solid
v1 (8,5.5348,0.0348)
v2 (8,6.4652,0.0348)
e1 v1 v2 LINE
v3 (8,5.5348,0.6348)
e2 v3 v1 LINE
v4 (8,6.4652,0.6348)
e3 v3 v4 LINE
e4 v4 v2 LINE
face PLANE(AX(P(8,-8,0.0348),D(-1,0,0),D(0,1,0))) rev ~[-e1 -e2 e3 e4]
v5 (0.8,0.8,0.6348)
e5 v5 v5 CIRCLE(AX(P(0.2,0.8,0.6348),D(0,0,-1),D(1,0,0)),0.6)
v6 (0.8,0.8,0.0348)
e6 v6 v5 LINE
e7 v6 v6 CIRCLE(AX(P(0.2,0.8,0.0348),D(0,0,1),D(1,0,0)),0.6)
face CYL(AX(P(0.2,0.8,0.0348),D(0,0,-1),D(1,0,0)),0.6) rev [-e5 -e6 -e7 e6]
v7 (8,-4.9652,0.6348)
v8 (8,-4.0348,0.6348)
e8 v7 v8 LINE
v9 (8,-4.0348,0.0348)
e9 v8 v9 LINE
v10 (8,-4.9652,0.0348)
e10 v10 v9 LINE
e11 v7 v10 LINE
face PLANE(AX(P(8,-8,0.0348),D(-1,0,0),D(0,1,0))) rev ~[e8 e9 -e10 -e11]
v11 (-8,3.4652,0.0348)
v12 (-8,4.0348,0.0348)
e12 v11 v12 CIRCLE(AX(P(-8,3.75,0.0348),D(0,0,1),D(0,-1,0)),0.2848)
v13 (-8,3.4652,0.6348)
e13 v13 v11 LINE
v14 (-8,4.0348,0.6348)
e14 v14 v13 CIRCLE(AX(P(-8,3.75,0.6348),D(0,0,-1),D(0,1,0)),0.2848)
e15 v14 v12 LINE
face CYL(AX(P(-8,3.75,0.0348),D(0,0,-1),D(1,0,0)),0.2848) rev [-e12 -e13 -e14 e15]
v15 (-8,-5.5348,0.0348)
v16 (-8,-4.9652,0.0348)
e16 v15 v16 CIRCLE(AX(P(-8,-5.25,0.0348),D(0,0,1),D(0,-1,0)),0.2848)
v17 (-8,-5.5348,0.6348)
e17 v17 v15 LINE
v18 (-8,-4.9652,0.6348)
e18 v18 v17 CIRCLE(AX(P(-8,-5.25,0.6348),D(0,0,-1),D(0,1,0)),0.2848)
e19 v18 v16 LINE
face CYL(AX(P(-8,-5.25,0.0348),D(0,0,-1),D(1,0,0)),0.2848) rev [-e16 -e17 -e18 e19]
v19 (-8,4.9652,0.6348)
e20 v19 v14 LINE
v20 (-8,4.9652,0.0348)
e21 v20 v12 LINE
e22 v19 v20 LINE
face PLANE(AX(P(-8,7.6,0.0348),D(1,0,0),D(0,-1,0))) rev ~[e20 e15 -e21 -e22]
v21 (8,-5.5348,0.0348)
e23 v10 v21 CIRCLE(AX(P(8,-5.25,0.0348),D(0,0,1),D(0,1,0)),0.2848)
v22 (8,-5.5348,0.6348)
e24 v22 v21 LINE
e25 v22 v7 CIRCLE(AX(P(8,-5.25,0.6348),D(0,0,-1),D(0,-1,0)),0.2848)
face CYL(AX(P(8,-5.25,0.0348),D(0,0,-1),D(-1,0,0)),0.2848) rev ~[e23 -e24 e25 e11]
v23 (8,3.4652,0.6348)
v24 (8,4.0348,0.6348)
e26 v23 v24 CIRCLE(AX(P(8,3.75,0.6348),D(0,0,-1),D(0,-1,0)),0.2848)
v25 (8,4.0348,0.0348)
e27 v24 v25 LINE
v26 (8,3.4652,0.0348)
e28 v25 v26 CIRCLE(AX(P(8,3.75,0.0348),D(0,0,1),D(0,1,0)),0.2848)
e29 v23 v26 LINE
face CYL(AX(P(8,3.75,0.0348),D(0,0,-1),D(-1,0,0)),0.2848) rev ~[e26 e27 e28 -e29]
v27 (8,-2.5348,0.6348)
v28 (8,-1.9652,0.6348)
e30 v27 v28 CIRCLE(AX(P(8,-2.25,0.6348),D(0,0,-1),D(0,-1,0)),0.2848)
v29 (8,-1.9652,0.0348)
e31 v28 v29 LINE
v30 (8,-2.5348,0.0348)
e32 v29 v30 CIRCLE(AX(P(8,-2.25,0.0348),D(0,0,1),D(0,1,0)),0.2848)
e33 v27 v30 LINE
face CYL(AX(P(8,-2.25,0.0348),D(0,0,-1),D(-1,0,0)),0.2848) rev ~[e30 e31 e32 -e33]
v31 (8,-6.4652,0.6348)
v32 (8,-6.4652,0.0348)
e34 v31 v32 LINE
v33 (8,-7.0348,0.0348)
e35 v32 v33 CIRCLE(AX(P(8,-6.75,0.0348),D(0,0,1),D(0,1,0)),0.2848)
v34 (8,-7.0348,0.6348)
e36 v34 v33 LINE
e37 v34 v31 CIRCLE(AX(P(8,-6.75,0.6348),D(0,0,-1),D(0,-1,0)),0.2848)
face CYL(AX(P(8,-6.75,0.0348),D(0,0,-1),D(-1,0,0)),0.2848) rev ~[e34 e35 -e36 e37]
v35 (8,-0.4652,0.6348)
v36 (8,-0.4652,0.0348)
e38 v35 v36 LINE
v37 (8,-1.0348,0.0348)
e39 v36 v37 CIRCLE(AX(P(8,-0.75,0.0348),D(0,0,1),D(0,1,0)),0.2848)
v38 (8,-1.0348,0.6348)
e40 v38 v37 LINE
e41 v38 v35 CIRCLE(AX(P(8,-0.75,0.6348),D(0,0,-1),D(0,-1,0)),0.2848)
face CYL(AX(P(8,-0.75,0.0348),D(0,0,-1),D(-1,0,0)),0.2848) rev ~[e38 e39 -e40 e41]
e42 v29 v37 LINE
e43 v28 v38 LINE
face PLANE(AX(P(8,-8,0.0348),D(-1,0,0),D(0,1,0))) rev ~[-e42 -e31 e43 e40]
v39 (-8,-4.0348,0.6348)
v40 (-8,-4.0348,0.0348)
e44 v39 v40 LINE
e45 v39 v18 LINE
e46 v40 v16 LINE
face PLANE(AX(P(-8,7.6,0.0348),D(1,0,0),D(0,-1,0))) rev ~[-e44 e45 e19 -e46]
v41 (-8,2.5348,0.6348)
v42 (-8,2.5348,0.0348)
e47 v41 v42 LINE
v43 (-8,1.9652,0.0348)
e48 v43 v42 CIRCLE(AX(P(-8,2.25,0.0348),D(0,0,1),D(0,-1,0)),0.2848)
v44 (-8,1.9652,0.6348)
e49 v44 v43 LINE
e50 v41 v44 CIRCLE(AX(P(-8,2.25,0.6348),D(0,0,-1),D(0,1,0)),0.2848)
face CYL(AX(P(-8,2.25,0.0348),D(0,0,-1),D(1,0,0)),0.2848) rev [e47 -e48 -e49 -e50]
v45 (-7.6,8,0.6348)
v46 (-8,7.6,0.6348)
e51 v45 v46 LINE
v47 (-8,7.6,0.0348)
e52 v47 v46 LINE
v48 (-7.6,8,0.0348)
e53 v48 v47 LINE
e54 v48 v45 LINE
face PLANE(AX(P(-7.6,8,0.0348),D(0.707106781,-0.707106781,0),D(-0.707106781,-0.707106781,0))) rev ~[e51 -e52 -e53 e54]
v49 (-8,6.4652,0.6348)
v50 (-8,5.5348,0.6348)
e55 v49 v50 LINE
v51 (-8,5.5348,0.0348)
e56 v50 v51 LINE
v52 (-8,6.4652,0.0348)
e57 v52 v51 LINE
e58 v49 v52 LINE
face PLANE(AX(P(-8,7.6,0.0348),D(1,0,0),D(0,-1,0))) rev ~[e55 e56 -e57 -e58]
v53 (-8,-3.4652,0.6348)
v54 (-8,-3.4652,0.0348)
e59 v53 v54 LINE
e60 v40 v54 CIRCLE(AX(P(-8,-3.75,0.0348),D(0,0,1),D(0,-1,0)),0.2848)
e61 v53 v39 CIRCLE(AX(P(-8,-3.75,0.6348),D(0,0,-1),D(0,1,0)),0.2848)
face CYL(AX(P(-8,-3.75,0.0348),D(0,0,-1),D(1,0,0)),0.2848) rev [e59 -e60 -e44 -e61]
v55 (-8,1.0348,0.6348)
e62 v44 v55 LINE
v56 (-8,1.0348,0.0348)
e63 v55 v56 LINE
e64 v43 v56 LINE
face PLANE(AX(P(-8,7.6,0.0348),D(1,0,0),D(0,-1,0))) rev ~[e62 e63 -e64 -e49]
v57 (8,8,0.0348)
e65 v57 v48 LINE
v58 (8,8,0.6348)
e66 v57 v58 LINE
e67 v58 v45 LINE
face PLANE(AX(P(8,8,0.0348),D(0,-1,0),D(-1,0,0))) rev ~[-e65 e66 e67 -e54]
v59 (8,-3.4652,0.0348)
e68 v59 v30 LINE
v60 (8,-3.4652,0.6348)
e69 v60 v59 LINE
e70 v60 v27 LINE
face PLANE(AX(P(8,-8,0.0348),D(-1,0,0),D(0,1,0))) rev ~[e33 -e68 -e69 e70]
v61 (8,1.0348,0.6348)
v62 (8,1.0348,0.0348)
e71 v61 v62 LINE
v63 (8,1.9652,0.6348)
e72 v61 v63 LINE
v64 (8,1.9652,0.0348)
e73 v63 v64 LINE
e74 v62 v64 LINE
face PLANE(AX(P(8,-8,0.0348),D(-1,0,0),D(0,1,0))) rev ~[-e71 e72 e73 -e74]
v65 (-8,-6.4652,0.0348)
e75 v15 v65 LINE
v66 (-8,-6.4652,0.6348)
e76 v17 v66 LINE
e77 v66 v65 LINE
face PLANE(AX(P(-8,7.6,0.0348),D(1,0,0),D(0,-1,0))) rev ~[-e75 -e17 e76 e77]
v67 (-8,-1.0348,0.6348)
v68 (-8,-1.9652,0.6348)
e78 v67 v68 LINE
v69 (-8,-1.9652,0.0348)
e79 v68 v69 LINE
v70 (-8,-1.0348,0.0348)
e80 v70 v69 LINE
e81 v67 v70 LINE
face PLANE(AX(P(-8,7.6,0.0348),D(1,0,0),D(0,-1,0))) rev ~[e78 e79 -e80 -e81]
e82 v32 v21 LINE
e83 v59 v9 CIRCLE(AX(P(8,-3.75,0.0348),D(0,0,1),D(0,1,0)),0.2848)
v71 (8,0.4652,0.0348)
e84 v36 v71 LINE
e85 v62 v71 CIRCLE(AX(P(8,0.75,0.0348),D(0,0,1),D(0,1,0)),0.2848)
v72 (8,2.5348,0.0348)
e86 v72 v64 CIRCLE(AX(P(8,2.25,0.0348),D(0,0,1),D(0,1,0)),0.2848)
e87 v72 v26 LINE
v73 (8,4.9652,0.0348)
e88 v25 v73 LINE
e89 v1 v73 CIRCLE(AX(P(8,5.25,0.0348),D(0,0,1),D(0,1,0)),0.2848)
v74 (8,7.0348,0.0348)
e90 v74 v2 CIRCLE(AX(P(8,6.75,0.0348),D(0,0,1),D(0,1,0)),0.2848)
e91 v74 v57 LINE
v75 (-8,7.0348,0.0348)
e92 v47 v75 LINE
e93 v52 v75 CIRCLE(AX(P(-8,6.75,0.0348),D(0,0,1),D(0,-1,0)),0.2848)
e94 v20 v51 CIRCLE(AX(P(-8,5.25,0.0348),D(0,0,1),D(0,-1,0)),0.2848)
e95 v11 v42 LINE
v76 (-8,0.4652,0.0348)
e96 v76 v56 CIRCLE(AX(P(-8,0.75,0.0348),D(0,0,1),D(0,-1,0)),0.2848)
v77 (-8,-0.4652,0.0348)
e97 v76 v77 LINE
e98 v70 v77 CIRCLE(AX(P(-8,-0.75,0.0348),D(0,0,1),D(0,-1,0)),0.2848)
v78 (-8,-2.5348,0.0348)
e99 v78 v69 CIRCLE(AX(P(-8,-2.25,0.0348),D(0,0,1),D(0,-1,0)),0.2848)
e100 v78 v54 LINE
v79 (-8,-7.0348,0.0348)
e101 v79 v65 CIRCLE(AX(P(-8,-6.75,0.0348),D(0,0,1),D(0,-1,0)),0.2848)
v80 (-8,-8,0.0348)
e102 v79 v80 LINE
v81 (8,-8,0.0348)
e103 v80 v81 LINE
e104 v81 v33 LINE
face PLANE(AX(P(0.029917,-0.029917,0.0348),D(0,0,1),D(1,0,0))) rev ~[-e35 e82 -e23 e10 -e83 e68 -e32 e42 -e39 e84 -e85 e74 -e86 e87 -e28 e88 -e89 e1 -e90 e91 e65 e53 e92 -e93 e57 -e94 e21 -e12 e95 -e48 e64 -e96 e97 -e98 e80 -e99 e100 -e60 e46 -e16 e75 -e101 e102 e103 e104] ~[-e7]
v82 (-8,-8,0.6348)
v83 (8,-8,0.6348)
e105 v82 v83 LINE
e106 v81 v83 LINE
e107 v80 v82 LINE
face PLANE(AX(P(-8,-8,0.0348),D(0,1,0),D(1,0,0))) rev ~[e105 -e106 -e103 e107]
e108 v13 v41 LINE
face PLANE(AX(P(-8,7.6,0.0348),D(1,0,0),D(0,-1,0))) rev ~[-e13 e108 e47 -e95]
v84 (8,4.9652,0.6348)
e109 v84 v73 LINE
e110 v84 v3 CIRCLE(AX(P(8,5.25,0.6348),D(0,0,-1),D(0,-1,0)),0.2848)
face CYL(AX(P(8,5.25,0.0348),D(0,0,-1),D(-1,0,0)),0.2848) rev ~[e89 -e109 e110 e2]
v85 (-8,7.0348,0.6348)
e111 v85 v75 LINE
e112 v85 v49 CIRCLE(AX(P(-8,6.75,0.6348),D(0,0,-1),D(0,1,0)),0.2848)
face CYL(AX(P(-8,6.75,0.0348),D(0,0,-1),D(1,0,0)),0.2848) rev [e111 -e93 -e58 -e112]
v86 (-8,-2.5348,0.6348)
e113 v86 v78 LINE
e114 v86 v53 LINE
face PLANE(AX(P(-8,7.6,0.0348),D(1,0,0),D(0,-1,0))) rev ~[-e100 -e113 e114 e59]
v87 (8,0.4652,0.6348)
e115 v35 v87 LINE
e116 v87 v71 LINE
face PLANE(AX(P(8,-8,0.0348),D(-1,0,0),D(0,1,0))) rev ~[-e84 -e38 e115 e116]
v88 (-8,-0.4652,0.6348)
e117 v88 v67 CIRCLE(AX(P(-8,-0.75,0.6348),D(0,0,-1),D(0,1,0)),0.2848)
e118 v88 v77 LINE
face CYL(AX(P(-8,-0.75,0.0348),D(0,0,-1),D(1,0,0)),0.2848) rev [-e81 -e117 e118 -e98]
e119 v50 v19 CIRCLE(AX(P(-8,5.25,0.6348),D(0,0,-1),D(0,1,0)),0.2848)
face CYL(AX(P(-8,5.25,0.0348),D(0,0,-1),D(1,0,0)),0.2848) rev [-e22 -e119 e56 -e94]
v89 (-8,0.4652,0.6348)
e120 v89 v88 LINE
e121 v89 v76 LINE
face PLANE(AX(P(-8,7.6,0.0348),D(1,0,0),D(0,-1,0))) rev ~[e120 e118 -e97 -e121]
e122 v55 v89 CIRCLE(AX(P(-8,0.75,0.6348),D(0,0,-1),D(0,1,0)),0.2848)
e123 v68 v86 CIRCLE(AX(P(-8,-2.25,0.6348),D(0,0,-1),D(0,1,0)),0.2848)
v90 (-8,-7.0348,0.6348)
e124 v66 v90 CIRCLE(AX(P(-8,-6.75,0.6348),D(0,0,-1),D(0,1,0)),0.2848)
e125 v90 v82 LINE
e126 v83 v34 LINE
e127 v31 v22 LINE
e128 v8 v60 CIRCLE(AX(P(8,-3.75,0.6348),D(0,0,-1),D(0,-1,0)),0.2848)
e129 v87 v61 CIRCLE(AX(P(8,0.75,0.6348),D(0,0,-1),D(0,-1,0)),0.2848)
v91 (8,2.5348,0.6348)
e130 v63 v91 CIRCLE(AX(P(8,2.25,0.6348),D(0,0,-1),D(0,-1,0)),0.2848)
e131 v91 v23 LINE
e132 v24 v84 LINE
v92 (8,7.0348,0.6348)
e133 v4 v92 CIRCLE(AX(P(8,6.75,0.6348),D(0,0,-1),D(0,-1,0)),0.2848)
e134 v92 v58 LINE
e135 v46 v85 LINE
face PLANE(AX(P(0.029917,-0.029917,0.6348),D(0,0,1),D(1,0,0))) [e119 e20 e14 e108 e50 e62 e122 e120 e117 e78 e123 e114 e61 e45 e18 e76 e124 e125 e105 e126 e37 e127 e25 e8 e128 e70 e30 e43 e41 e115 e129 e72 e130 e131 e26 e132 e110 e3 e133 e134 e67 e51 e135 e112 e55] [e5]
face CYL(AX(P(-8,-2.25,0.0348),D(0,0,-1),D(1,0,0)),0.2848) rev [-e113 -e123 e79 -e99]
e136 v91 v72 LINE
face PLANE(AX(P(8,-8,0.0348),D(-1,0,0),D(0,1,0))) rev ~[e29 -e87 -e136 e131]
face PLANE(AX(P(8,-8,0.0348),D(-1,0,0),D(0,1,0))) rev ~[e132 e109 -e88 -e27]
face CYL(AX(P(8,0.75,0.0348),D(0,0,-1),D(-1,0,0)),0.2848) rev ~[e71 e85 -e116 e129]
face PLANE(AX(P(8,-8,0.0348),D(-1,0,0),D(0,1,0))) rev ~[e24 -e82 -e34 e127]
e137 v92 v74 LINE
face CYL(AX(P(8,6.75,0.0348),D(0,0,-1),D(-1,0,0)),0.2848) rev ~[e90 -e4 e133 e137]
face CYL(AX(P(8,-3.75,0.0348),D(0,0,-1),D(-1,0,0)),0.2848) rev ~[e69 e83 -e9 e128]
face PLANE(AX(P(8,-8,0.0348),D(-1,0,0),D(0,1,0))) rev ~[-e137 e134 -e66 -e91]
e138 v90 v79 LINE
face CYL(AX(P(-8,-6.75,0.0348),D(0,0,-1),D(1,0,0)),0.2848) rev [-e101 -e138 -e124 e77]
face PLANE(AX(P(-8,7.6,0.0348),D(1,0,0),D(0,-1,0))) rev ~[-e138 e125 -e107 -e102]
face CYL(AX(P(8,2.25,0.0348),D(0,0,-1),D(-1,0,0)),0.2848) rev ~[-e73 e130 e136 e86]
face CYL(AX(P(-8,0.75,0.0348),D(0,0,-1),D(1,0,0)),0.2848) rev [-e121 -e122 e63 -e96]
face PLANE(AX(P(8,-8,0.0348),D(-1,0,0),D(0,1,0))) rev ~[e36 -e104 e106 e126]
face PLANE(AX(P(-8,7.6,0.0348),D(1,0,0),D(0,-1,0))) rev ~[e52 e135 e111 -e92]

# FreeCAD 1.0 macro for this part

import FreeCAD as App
import Part
import Sketcher
Q = App.Units.Quantity

doc = App.newDocument("Part")
body = doc.addObject("PartDesign::Body", "Body")

# Sketch on XY plane
sketch1 = body.newObject("Sketcher::SketchObject", "Sketch")
sketch1.AttachmentSupport = (doc.getObject("XY_Plane"), [""])
sketch1.MapMode = "FlatFace"
sketch1.addGeometry(Part.LineSegment(App.Vector(-8, -8, 0), App.Vector(8, -8, 0)), False)
sketch1.addGeometry(Part.LineSegment(App.Vector(8, -8, 0), App.Vector(8, 8, 0)), False)
sketch1.addGeometry(Part.LineSegment(App.Vector(8, 8, 0), App.Vector(-7.6, 8, 0)), False)
sketch1.addGeometry(Part.LineSegment(App.Vector(-7.6, 8, 0), App.Vector(-8, 7.6, 0)), False)
sketch1.addGeometry(Part.LineSegment(App.Vector(-8, 7.6, 0), App.Vector(-8, -8, 0)), False)
sketch1.addConstraint(Sketcher.Constraint("Coincident", 0, 2, 1, 1))
sketch1.addConstraint(Sketcher.Constraint("Coincident", 1, 2, 2, 1))
sketch1.addConstraint(Sketcher.Constraint("Coincident", 2, 2, 3, 1))
sketch1.addConstraint(Sketcher.Constraint("Coincident", 3, 2, 4, 1))
sketch1.addConstraint(Sketcher.Constraint("Coincident", 4, 2, 0, 1))
sketch1.addConstraint(Sketcher.Constraint("Horizontal", 0))
sketch1.addConstraint(Sketcher.Constraint("Vertical", 1))
sketch1.addConstraint(Sketcher.Constraint("Horizontal", 2))
sketch1.addConstraint(Sketcher.Constraint("Vertical", 4))
sketch1.addConstraint(Sketcher.Constraint("Symmetric", 1, 2, 4, 2, -1, 1))
sketch1.addConstraint(Sketcher.Constraint("Equal", 0, 1))
sketch1.addConstraint(Sketcher.Constraint("Equal", 2, 4))
sketch1.addConstraint(Sketcher.Constraint("DistanceX", 0, 1, 0, 2, Q("16 mm")))
sketch1.addConstraint(Sketcher.Constraint("DistanceX", 2, 2, 2, 1, Q("15.6 mm")))
pad1 = body.newObject("PartDesign::Pad", "Pad")
pad1.Profile = sketch1
pad1.Length = 0.6

# Sketch on XY plane
sketch2 = body.newObject("Sketcher::SketchObject", "Sketch001")
sketch2.AttachmentSupport = (doc.getObject("XY_Plane"), [""])
sketch2.MapMode = "FlatFace"
sketch2.addGeometry(Part.Circle(App.Vector(0.2, 0.8, 0), App.Vector(0, 0, 1), 0.6), False)
sketch2.addConstraint(Sketcher.Constraint("Diameter", 0, Q("1.2 mm")))
sketch2.addConstraint(Sketcher.Constraint("DistanceX", -1, 1, 0, 3, Q("0.2 mm")))
sketch2.addConstraint(Sketcher.Constraint("DistanceY", -1, 1, 0, 3, Q("0.8 mm")))
pocket1 = body.newObject("PartDesign::Pocket", "Pocket")
pocket1.Profile = sketch2
pocket1.Type = "ThroughAll"
pocket1.Reversed = True

# Sketch on XY plane
sketch3 = body.newObject("Sketcher::SketchObject", "Sketch002")
sketch3.AttachmentSupport = (doc.getObject("XY_Plane"), [""])
sketch3.MapMode = "FlatFace"
sketch3.addGeometry(Part.Circle(App.Vector(-8, 6.75, 0), App.Vector(0, 0, 1), 0.28), False)
sketch3.addConstraint(Sketcher.Constraint("DistanceX", 0, 3, -1, 1, Q("8 mm")))
sketch3.addConstraint(Sketcher.Constraint("Diameter", 0, Q("0.5696 mm")))
sketch3.addConstraint(Sketcher.Constraint("DistanceY", -1, 1, 0, 3, Q("6.75 mm")))
pocket2 = body.newObject("PartDesign::Pocket", "Pocket001")
pocket2.Profile = sketch3
pocket2.Type = "ThroughAll"
pocket2.Reversed = True

# Sketch on XY plane
sketch4 = body.newObject("Sketcher::SketchObject", "Sketch003")
sketch4.AttachmentSupport = (doc.getObject("XY_Plane"), [""])
sketch4.MapMode = "FlatFace"
sketch4.addGeometry(Part.Circle(App.Vector(-8, 5.25, 0), App.Vector(0, 0, 1), 0.28), False)
sketch4.addConstraint(Sketcher.Constraint("DistanceX", 0, 3, -1, 1, Q("8 mm")))
sketch4.addConstraint(Sketcher.Constraint("Diameter", 0, Q("0.5696 mm")))
sketch4.addConstraint(Sketcher.Constraint("DistanceY", -1, 1, 0, 3, Q("5.25 mm")))
pocket3 = body.newObject("PartDesign::Pocket", "Pocket002")
pocket3.Profile = sketch4
pocket3.Type = "ThroughAll"
pocket3.Reversed = True

# Sketch on XY plane
sketch5 = body.newObject("Sketcher::SketchObject", "Sketch004")
sketch5.AttachmentSupport = (doc.getObject("XY_Plane"), [""])
sketch5.MapMode = "FlatFace"
sketch5.addGeometry(Part.Circle(App.Vector(-8, 3.75, 0), App.Vector(0, 0, 1), 0.28), False)
sketch5.addConstraint(Sketcher.Constraint("DistanceX", 0, 3, -1, 1, Q("8 mm")))
sketch5.addConstraint(Sketcher.Constraint("Diameter", 0, Q("0.5696 mm")))
sketch5.addConstraint(Sketcher.Constraint("DistanceY", -1, 1, 0, 3, Q("3.75 mm")))
pocket4 = body.newObject("PartDesign::Pocket", "Pocket003")
pocket4.Profile = sketch5
pocket4.Type = "ThroughAll"
pocket4.Reversed = True

# Sketch on XY plane
sketch6 = body.newObject("Sketcher::SketchObject", "Sketch005")
sketch6.AttachmentSupport = (doc.getObject("XY_Plane"), [""])
sketch6.MapMode = "FlatFace"
sketch6.addGeometry(Part.Circle(App.Vector(-8, 2.25, 0), App.Vector(0, 0, 1), 0.28), False)
sketch6.addConstraint(Sketcher.Constraint("DistanceX", 0, 3, -1, 1, Q("8 mm")))
sketch6.addConstraint(Sketcher.Constraint("Diameter", 0, Q("0.5696 mm")))
sketch6.addConstraint(Sketcher.Constraint("DistanceY", -1, 1, 0, 3, Q("2.25 mm")))
pocket5 = body.newObject("PartDesign::Pocket", "Pocket004")
pocket5.Profile = sketch6
pocket5.Type = "ThroughAll"
pocket5.Reversed = True

# Sketch on XY plane
sketch7 = body.newObject("Sketcher::SketchObject", "Sketch006")
sketch7.AttachmentSupport = (doc.getObject("XY_Plane"), [""])
sketch7.MapMode = "FlatFace"
sketch7.addGeometry(Part.Circle(App.Vector(-8, 0.75, 0), App.Vector(0, 0, 1), 0.28), False)
sketch7.addConstraint(Sketcher.Constraint("DistanceX", 0, 3, -1, 1, Q("8 mm")))
sketch7.addConstraint(Sketcher.Constraint("Diameter", 0, Q("0.5696 mm")))
sketch7.addConstraint(Sketcher.Constraint("DistanceY", -1, 1, 0, 3, Q("0.75 mm")))
pocket6 = body.newObject("PartDesign::Pocket", "Pocket005")
pocket6.Profile = sketch7
pocket6.Type = "ThroughAll"
pocket6.Reversed = True

# Sketch on XY plane
sketch8 = body.newObject("Sketcher::SketchObject", "Sketch007")
sketch8.AttachmentSupport = (doc.getObject("XY_Plane"), [""])
sketch8.MapMode = "FlatFace"
sketch8.addGeometry(Part.Circle(App.Vector(-8, -0.75, 0), App.Vector(0, 0, 1), 0.28), False)
sketch8.addConstraint(Sketcher.Constraint("DistanceX", 0, 3, -1, 1, Q("8 mm")))
sketch8.addConstraint(Sketcher.Constraint("Diameter", 0, Q("0.5696 mm")))
sketch8.addConstraint(Sketcher.Constraint("DistanceY", 0, 3, -1, 1, Q("0.75 mm")))
pocket7 = body.newObject("PartDesign::Pocket", "Pocket006")
pocket7.Profile = sketch8
pocket7.Type = "ThroughAll"
pocket7.Reversed = True

# Sketch on XY plane
sketch9 = body.newObject("Sketcher::SketchObject", "Sketch008")
sketch9.AttachmentSupport = (doc.getObject("XY_Plane"), [""])
sketch9.MapMode = "FlatFace"
sketch9.addGeometry(Part.Circle(App.Vector(-8, -2.25, 0), App.Vector(0, 0, 1), 0.28), False)
sketch9.addConstraint(Sketcher.Constraint("DistanceX", 0, 3, -1, 1, Q("8 mm")))
sketch9.addConstraint(Sketcher.Constraint("Diameter", 0, Q("0.5696 mm")))
sketch9.addConstraint(Sketcher.Constraint("DistanceY", 0, 3, -1, 1, Q("2.25 mm")))
pocket8 = body.newObject("PartDesign::Pocket", "Pocket007")
pocket8.Profile = sketch9
pocket8.Type = "ThroughAll"
pocket8.Reversed = True

# Sketch on XY plane
sketch10 = body.newObject("Sketcher::SketchObject", "Sketch009")
sketch10.AttachmentSupport = (doc.getObject("XY_Plane"), [""])
sketch10.MapMode = "FlatFace"
sketch10.addGeometry(Part.Circle(App.Vector(-8, -3.75, 0), App.Vector(0, 0, 1), 0.28), False)
sketch10.addConstraint(Sketcher.Constraint("DistanceX", 0, 3, -1, 1, Q("8 mm")))
sketch10.addConstraint(Sketcher.Constraint("Diameter", 0, Q("0.5696 mm")))
sketch10.addConstraint(Sketcher.Constraint("DistanceY", 0, 3, -1, 1, Q("3.75 mm")))
pocket9 = body.newObject("PartDesign::Pocket", "Pocket008")
pocket9.Profile = sketch10
pocket9.Type = "ThroughAll"
pocket9.Reversed = True

# Sketch on XY plane
sketch11 = body.newObject("Sketcher::SketchObject", "Sketch010")
sketch11.AttachmentSupport = (doc.getObject("XY_Plane"), [""])
sketch11.MapMode = "FlatFace"
sketch11.addGeometry(Part.Circle(App.Vector(-8, -5.25, 0), App.Vector(0, 0, 1), 0.28), False)
sketch11.addConstraint(Sketcher.Constraint("DistanceX", 0, 3, -1, 1, Q("8 mm")))
sketch11.addConstraint(Sketcher.Constraint("Diameter", 0, Q("0.5696 mm")))
sketch11.addConstraint(Sketcher.Constraint("DistanceY", 0, 3, -1, 1, Q("5.25 mm")))
pocket10 = body.newObject("PartDesign::Pocket", "Pocket009")
pocket10.Profile = sketch11
pocket10.Type = "ThroughAll"
pocket10.Reversed = True

# Sketch on XY plane
sketch12 = body.newObject("Sketcher::SketchObject", "Sketch011")
sketch12.AttachmentSupport = (doc.getObject("XY_Plane"), [""])
sketch12.MapMode = "FlatFace"
sketch12.addGeometry(Part.Circle(App.Vector(-8, -6.75, 0), App.Vector(0, 0, 1), 0.28), False)
sketch12.addConstraint(Sketcher.Constraint("DistanceX", 0, 3, -1, 1, Q("8 mm")))
sketch12.addConstraint(Sketcher.Constraint("Diameter", 0, Q("0.5696 mm")))
sketch12.addConstraint(Sketcher.Constraint("DistanceY", 0, 3, -1, 1, Q("6.75 mm")))
pocket11 = body.newObject("PartDesign::Pocket", "Pocket010")
pocket11.Profile = sketch12
pocket11.Type = "ThroughAll"
pocket11.Reversed = True
doc.recompute()

mirrored = body.newObject("PartDesign::Mirrored", "Mirrored")
mirrored.Originals = [pocket2, pocket3, pocket4, pocket5, pocket6, pocket7, pocket8, pocket9, pocket10, pocket11]
mirrored.MirrorPlane = (doc.getObject("YZ_Plane"), [""])
body.Tip = mirrored
body2 = doc.addObject("PartDesign::Body", "Body001")
doc.recompute()

body.Placement = App.Placement(App.Vector(0, 0, 0.0348), App.Rotation(App.Vector(0, 0, 1), 0))
boolean = body2.newObject("PartDesign::Boolean", "Boolean")
boolean.Type = "Fuse"
boolean.addObjects([body])

doc.recompute()
